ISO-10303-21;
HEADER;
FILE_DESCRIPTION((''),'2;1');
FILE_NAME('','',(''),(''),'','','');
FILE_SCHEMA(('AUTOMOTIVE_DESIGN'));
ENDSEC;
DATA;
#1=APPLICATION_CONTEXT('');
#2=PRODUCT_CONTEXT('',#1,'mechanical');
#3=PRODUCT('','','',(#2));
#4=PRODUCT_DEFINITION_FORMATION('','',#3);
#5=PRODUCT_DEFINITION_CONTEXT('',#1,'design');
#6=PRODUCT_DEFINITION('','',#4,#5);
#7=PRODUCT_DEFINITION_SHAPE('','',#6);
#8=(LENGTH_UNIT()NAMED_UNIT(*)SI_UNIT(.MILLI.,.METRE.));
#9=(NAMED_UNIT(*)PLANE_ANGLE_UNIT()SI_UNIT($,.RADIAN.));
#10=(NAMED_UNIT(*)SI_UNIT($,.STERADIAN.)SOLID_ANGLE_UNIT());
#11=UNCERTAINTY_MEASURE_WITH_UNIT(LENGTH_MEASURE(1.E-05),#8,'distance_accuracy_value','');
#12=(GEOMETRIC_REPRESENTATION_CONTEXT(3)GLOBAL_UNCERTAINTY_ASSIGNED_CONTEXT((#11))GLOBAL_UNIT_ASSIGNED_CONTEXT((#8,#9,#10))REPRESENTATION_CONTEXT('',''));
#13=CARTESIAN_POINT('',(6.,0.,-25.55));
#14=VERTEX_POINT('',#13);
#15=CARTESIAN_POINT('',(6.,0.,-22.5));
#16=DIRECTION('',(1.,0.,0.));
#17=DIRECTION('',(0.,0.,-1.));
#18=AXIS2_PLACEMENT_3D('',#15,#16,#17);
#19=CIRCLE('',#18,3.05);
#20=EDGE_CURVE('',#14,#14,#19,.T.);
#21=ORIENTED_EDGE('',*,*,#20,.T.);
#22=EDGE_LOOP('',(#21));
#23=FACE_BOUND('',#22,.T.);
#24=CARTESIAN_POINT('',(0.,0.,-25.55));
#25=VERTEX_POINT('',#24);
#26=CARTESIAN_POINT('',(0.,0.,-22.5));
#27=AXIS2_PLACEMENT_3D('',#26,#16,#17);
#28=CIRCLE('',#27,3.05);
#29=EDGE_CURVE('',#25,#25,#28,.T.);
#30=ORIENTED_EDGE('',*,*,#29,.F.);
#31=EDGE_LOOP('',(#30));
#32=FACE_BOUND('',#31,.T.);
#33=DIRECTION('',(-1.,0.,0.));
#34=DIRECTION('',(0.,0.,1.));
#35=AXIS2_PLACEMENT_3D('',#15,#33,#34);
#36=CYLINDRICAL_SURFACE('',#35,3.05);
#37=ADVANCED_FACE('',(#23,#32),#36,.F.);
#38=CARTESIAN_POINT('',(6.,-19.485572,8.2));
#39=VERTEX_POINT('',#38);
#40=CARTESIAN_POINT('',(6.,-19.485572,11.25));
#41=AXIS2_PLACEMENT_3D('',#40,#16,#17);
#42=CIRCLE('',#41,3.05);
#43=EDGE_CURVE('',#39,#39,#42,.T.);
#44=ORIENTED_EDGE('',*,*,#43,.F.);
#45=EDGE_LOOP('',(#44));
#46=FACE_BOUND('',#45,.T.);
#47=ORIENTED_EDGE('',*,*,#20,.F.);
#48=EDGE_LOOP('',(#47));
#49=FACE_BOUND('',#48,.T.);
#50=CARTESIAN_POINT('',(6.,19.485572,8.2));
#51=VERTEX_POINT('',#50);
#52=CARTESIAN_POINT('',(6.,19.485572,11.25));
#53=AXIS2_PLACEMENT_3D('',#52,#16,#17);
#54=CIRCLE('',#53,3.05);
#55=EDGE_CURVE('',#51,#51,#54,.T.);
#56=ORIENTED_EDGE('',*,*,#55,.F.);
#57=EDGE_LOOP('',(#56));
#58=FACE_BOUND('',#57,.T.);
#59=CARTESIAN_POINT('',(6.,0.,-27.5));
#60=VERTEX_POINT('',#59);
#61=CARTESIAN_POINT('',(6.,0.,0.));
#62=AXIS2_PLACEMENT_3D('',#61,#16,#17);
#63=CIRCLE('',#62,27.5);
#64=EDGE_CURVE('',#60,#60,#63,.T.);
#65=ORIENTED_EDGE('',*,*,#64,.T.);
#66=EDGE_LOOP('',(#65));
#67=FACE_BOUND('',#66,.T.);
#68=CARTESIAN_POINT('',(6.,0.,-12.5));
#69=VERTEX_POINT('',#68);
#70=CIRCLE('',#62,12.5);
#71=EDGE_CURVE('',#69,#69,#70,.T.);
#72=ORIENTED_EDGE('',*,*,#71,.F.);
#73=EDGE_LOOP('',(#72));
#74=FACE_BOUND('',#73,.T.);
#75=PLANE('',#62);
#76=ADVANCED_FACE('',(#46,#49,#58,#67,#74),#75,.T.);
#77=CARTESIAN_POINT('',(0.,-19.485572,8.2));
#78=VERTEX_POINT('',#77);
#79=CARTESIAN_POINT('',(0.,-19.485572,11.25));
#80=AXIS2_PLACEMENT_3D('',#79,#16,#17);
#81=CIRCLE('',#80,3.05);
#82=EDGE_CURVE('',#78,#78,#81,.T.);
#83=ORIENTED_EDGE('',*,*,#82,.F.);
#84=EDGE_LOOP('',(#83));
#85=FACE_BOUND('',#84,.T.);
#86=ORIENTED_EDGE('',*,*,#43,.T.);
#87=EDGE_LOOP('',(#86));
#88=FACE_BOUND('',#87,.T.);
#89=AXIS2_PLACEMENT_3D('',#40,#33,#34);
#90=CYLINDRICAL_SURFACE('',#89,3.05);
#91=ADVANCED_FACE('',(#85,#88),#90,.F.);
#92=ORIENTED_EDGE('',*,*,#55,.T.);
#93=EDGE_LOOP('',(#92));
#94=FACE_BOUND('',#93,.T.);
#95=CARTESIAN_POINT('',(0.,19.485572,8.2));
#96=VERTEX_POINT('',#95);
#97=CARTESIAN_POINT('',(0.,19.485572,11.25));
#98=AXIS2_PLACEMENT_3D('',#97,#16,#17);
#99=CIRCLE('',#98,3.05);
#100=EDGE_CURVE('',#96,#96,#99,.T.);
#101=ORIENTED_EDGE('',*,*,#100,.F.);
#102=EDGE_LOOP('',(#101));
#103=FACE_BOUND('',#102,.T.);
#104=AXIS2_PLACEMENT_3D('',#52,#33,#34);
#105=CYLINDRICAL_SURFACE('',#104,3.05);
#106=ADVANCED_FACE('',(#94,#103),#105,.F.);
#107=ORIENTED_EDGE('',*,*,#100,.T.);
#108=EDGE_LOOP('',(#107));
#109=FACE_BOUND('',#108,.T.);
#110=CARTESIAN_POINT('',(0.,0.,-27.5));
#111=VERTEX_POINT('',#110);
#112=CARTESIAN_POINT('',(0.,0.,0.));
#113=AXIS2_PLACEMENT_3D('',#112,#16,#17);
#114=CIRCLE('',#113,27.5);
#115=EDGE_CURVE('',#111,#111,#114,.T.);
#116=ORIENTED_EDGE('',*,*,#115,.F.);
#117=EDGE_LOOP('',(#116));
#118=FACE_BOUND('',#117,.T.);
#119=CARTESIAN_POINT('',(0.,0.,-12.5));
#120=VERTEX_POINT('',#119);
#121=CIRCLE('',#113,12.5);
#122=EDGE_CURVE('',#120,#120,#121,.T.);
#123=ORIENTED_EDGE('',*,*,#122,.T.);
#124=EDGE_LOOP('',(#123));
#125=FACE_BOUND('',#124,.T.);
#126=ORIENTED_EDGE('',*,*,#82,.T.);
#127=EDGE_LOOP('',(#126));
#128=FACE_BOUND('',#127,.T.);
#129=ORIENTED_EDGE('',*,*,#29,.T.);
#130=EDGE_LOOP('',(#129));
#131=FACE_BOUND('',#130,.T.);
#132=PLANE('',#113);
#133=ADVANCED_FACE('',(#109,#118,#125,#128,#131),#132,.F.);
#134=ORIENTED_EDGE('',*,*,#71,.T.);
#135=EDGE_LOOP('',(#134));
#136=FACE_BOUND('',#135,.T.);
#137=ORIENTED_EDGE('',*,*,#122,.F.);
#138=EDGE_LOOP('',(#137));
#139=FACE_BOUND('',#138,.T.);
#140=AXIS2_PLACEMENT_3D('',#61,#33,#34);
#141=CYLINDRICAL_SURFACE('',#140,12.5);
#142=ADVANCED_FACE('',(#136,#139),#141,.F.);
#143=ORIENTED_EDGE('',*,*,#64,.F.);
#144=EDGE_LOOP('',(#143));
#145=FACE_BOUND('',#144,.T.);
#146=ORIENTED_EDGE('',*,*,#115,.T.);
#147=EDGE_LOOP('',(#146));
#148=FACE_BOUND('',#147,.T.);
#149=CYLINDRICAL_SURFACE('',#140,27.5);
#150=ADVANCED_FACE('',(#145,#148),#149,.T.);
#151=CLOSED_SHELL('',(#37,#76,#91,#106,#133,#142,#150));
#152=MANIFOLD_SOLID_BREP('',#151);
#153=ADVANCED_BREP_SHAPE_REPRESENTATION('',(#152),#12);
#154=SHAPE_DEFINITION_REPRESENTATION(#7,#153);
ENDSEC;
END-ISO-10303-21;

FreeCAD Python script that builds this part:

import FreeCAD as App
import Part
import Sketcher
Q = App.Units.Quantity

doc = App.newDocument("Part")
body = doc.addObject("PartDesign::Body", "Body")

sketch1 = doc.addObject("Sketcher::SketchObject", "Sketch")
body.addObject(sketch1)
sketch1.AttachmentSupport = (doc.YZ_Plane, [""])
sketch1.MapMode = "FlatFace"
sketch1.addGeometry([
    Part.Circle(App.Vector(0, 0, 0), App.Vector(0, 0, 1), 27.5),
    Part.Circle(App.Vector(-19.485572, 11.25, 0), App.Vector(0, 0, 1), 3.05),
    Part.Circle(App.Vector(0, 0, 0), App.Vector(0, 0, 1), 12.5),
    Part.Circle(App.Vector(19.485572, 11.25, 0), App.Vector(0, 0, 1), 3.05),
    Part.Circle(App.Vector(0, -22.5, 0), App.Vector(0, 0, 1), 3.05),
], False)
sketch1.addConstraint([
    Sketcher.Constraint("Coincident", 0, 3, -1, 1),
    Sketcher.Constraint("Coincident", 2, 3, -1, 1),
    Sketcher.Constraint("Equal", 1, 3),
    Sketcher.Constraint("Equal", 3, 4),
    Sketcher.Constraint("Symmetric", 1, 3, 3, 3, -2),
    Sketcher.Constraint("PointOnObject", 4, 3, -2),
    Sketcher.Constraint("Diameter", 0, Q("55 mm")),
    Sketcher.Constraint("Diameter", 2, Q("25 mm")),
    Sketcher.Constraint("Diameter", 1, Q("6.1 mm")),
    Sketcher.Constraint("DistanceY", 4, 3, -1, 1, Q("22.5 mm")),
    Sketcher.Constraint("DistanceY", -1, 1, 1, 3, Q("11.25 mm")),
    Sketcher.Constraint("DistanceX", 1, 3, -1, 1, Q("19.485572 mm")),
])
pad1 = doc.addObject("PartDesign::Pad", "Pad")
body.addObject(pad1)
pad1.Profile = sketch1
pad1.Length = 6

doc.recompute()
